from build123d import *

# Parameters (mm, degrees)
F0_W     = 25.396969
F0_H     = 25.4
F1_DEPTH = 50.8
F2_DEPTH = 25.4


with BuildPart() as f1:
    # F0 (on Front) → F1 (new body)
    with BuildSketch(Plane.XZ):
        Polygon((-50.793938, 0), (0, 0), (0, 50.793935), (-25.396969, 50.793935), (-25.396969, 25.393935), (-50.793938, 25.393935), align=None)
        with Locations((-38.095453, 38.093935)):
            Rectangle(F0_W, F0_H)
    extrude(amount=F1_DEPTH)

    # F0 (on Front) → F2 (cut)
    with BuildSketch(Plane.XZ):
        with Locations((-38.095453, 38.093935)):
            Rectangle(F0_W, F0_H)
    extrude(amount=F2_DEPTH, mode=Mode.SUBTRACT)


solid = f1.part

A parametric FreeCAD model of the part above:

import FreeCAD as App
import Part
import Sketcher
Q = App.Units.Quantity

doc = App.newDocument("Part")
params = doc.addObject("Spreadsheet::Sheet", "Params")
for row, (alias, value) in enumerate([
    ("sketch1_height", "1 in"),
    ("pad1_length", "2 in"),
    ("sketch2_height", "1 in"),
    ("pocket1_length", "1 in"),
], start=1):
    params.set(f"A{row}", alias)
    params.set(f"B{row}", "=" + value)
    params.setAlias(f"B{row}", alias)

body = doc.addObject("PartDesign::Body", "Body")

# Sketch on XZ plane
sketch1 = body.newObject("Sketcher::SketchObject", "Sketch")
sketch1.AttachmentSupport = (doc.getObject("XZ_Plane"), [""])
sketch1.MapMode = "FlatFace"
sketch1.addGeometry([
    Part.LineSegment(App.Vector(-50.793938, 25.393935, 0), App.Vector(-50.793938, 0, 0)),  # 0
    Part.LineSegment(App.Vector(-50.793938, 0, 0), App.Vector(0, 0, 0)),  # 1
    Part.LineSegment(App.Vector(0, 0, 0), App.Vector(0, 50.793935, 0)),  # 2
    Part.LineSegment(App.Vector(0, 50.793935, 0), App.Vector(-50.793937, 50.793935, 0)),  # 3
    Part.LineSegment(App.Vector(-50.793937, 50.793935, 0), App.Vector(-50.793937, 25.393935, 0)),  # 4
    Part.LineSegment(App.Vector(-50.793938, 25.393935, 0), App.Vector(-50.793937, 25.393935, 0)),  # 5
], False)
sketch1.addConstraint([
    Sketcher.Constraint("Coincident", 0, 2, 1, 1),
    Sketcher.Constraint("Coincident", 1, 2, 2, 1),
    Sketcher.Constraint("Coincident", 2, 2, 3, 1),
    Sketcher.Constraint("Coincident", 3, 2, 4, 1),
    Sketcher.Constraint("Coincident", 4, 2, 5, 1),
    Sketcher.Constraint("Coincident", 5, 2, 0, 1),
    Sketcher.Constraint("Vertical", 0),
    Sketcher.Constraint("Horizontal", 1),
    Sketcher.Constraint("Vertical", 2),
    Sketcher.Constraint("Horizontal", 3),
    Sketcher.Constraint("Vertical", 4),
    Sketcher.Constraint("Horizontal", 5),
    Sketcher.Constraint("Coincident", 1, 2, -1, 1),
    Sketcher.Constraint("DistanceY", 4, 2, 4, 1, Q("1 in")),
    Sketcher.Constraint("DistanceX", 1, 1, 1, 2, Q("50.793938 mm")),
    Sketcher.Constraint("DistanceX", 3, 2, 3, 1, Q("50.793937 mm")),
    Sketcher.Constraint("DistanceY", 0, 2, 0, 1, Q("25.393935 mm")),
])
sketch1.setExpression("Constraints[13]", "Params.sketch1_height")
pad1 = body.newObject("PartDesign::Pad", "Pad")
pad1.Profile = sketch1
pad1.setExpression("Length", "Params.pad1_length")

# Sketch on XZ plane
sketch2 = body.newObject("Sketcher::SketchObject", "Sketch001")
sketch2.AttachmentSupport = (doc.getObject("XZ_Plane"), [""])
sketch2.MapMode = "FlatFace"
sketch2.addGeometry([
    Part.LineSegment(App.Vector(-51, 51, 0), App.Vector(-51, 25, 0)),
    Part.LineSegment(App.Vector(-51, 25, 0), App.Vector(-25, 25, 0)),
    Part.LineSegment(App.Vector(-25, 25, 0), App.Vector(-25, 51, 0)),
    Part.LineSegment(App.Vector(-25, 51, 0), App.Vector(-51, 51, 0)),
], False)
sketch2.addConstraint([
    Sketcher.Constraint("Coincident", 0, 2, 1, 1),
    Sketcher.Constraint("Coincident", 1, 2, 2, 1),
    Sketcher.Constraint("Coincident", 2, 2, 3, 1),
    Sketcher.Constraint("Coincident", 3, 2, 0, 1),
    Sketcher.Constraint("Vertical", 0),
    Sketcher.Constraint("Horizontal", 1),
    Sketcher.Constraint("Vertical", 2),
    Sketcher.Constraint("Horizontal", 3),
    Sketcher.Constraint("DistanceY", 0, 2, 0, 1, Q("1 in")),
    Sketcher.Constraint("DistanceX", 1, 1, 1, 2, Q("25.396969 mm")),
    Sketcher.Constraint("DistanceX", 1, 2, -1, 1, Q("25.396968 mm")),
    Sketcher.Constraint("DistanceY", -1, 1, 0, 2, Q("25.393935 mm")),
])
sketch2.setExpression("Constraints[8]", "Params.sketch2_height")
pocket1 = body.newObject("PartDesign::Pocket", "Pocket")
pocket1.Profile = sketch2
pocket1.setExpression("Length", "Params.pocket1_length")
pocket1.Reversed = True

doc.recompute()
